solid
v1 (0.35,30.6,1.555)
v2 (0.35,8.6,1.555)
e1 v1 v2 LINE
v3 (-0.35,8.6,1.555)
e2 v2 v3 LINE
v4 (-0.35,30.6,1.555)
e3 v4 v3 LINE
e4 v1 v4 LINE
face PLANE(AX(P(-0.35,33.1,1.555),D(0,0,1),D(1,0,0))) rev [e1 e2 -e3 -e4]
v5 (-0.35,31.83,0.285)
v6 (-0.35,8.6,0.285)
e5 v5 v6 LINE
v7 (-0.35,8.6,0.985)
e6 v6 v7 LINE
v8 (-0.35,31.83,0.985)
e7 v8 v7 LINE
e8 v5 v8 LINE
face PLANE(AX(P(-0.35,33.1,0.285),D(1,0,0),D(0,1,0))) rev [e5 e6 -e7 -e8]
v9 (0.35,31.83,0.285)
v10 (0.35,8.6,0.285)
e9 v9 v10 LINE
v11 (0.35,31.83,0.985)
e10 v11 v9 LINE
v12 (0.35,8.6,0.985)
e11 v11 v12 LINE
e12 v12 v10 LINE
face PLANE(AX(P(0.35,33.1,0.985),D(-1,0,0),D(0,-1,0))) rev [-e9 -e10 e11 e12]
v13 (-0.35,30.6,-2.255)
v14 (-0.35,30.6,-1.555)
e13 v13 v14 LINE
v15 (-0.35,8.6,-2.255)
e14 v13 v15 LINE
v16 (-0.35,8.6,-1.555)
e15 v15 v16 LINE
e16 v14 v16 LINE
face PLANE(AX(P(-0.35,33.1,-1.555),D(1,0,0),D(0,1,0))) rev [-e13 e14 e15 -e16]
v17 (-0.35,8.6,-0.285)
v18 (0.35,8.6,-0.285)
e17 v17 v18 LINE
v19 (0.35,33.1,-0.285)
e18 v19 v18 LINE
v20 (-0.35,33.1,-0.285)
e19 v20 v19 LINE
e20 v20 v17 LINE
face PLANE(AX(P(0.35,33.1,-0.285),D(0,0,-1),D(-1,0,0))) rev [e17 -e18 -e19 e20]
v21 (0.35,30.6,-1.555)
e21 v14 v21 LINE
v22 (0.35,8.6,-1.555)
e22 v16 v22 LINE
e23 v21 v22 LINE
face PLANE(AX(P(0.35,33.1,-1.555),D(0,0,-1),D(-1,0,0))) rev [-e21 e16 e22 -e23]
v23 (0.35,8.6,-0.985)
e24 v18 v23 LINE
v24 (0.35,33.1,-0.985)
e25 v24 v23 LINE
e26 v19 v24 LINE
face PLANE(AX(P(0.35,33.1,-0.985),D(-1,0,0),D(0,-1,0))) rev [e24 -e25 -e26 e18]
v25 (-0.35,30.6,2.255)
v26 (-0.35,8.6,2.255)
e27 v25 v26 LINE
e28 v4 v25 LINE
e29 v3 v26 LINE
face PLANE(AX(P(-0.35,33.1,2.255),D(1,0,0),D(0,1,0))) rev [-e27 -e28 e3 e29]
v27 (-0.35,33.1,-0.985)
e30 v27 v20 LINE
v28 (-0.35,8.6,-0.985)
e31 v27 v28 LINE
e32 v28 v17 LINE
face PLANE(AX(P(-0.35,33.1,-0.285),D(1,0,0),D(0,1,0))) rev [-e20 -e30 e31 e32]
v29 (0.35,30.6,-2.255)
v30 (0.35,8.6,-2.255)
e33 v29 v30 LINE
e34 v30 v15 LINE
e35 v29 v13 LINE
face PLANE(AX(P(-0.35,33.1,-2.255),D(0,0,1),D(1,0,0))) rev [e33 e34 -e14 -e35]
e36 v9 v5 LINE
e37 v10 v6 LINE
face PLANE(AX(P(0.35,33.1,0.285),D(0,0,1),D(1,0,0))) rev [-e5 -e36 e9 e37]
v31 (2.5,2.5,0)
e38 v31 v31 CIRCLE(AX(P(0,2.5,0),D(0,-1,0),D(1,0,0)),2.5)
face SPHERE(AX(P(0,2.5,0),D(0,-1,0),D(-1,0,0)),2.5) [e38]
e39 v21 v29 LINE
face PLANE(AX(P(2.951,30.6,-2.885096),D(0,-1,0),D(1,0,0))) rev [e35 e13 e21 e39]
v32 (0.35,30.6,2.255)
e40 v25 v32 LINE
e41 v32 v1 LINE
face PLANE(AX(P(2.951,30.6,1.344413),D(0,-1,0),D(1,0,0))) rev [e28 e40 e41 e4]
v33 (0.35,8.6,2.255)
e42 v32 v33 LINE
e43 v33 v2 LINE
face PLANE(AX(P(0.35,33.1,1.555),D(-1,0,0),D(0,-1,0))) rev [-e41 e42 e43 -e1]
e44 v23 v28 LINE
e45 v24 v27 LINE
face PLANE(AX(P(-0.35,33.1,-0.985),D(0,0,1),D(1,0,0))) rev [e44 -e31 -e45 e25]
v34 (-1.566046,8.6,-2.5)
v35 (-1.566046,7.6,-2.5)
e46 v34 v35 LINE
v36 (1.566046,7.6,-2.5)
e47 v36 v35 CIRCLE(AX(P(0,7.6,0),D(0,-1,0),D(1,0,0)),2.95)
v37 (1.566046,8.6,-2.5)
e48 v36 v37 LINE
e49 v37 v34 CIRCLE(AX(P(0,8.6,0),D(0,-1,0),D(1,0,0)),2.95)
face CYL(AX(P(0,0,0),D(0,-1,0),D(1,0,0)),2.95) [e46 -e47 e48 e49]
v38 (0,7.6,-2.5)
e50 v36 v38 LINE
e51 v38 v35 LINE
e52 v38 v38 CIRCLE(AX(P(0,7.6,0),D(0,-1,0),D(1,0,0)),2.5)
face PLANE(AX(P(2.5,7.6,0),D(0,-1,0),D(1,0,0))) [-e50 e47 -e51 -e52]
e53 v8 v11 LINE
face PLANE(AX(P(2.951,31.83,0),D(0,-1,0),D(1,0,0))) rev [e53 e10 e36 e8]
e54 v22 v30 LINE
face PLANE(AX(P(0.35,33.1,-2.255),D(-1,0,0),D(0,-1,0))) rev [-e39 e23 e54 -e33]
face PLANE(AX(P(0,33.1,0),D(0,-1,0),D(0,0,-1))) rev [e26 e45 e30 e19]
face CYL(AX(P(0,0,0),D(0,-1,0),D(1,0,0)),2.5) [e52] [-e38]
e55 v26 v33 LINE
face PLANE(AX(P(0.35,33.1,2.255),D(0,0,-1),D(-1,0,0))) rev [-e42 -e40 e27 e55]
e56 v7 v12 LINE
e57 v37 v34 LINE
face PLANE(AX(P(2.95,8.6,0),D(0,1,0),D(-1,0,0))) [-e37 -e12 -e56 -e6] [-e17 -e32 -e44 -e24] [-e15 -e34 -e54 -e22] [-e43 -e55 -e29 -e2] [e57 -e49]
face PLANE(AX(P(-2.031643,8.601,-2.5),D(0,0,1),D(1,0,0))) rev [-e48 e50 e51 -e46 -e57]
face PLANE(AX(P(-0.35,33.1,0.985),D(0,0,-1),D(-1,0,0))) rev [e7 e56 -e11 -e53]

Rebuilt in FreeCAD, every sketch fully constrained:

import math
import FreeCAD as App
import Part
import Sketcher

V = App.Vector
Q = App.Units.Quantity


def add_polygon(sketch, points):
    """Adds a closed chain of lines whose ends are joined by coincident constraints."""
    first, n = sketch.GeometryCount, len(points)
    for a, b in zip(points, points[1:] + points[:1]):
        sketch.addGeometry(Part.LineSegment(App.Vector(*a, 0), App.Vector(*b, 0)), False)
    for i in range(n):
        sketch.addConstraint(Sketcher.Constraint("Coincident", first + i, 2, first + (i + 1) % n, 1))

doc = App.newDocument("Part")
params = doc.addObject("Spreadsheet::Sheet", "Params")
for row, (alias, value) in enumerate([
    ("sketch1_radius", "2.5 mm"),
    ("sketch1_height", "1 mm"),
    ("sketch1_height2", "5.1 mm"),
    ("sketch1_width", "0.45 mm"),
    ("revolution_angle", "360 deg"),
    ("pocket1_length", "1 mm"),
    ("sketch3_width", "0.7 mm"),
    ("pad1_length", "24.5 mm"),
    ("sketch4_width", "1.23 mm"),
    ("pocket2_length", "5.9 mm"),
], start=1):
    params.set(f"A{row}", alias)
    params.set(f"B{row}", "=" + value)
    params.setAlias(f"B{row}", alias)

body = doc.addObject("PartDesign::Body", "Body")

# Sketch on XY plane
sketch1 = doc.addObject("Sketcher::SketchObject", "Sketch")
body.addObject(sketch1)
sketch1.AttachmentSupport = (doc.XY_Plane, [""])
sketch1.MapMode = "FlatFace"
sketch1.addGeometry(Part.LineSegment(V(2.5, 2.5, 0), V(2.5, 7.6, 0)), False)
sketch1.addGeometry(Part.LineSegment(V(2.5, 7.6, 0), V(2.95, 7.6, 0)), False)
sketch1.addGeometry(Part.LineSegment(V(2.95, 7.6, 0), V(2.95, 8.6, 0)), False)
sketch1.addGeometry(Part.LineSegment(V(2.95, 8.6, 0), V(0, 8.6, 0)), False)
sketch1.addGeometry(Part.LineSegment(V(0, 8.6, 0), V(0, 0, 0)), False)
sketch1.addGeometry(Part.ArcOfCircle(Part.Circle(V(0, 2.5, 0), V(0, 0, 1), 2.5), math.radians(-90), math.radians(0)), False)
sketch1.addConstraint(Sketcher.Constraint("Coincident", 0, 2, 1, 1))
sketch1.addConstraint(Sketcher.Constraint("Coincident", 1, 2, 2, 1))
sketch1.addConstraint(Sketcher.Constraint("Coincident", 2, 2, 3, 1))
sketch1.addConstraint(Sketcher.Constraint("Coincident", 3, 2, 4, 1))
sketch1.addConstraint(Sketcher.Constraint("Coincident", 4, 2, 5, 1))
sketch1.addConstraint(Sketcher.Constraint("Tangent", 5, 2, 0, 1))
sketch1.addConstraint(Sketcher.Constraint("Vertical", 0))
sketch1.addConstraint(Sketcher.Constraint("Horizontal", 1))
sketch1.addConstraint(Sketcher.Constraint("Vertical", 2))
sketch1.addConstraint(Sketcher.Constraint("Horizontal", 3))
sketch1.addConstraint(Sketcher.Constraint("Vertical", 4))
sketch1.addConstraint(Sketcher.Constraint("Coincident", 4, 2, -1, 1))
sketch1.addConstraint(Sketcher.Constraint("PointOnObject", 5, 3, -2))
sketch1.addConstraint(Sketcher.Constraint("Radius", 5, Q("2.5 mm")))
sketch1.addConstraint(Sketcher.Constraint("DistanceY", 2, 1, 2, 2, Q("1 mm")))
sketch1.addConstraint(Sketcher.Constraint("DistanceY", 0, 1, 0, 2, Q("5.1 mm")))
sketch1.addConstraint(Sketcher.Constraint("DistanceX", 1, 1, 1, 2, Q("0.45 mm")))
sketch1.setExpression("Constraints[13]", "Params.sketch1_radius")
sketch1.setExpression("Constraints[14]", "Params.sketch1_height")
sketch1.setExpression("Constraints[15]", "Params.sketch1_height2")
sketch1.setExpression("Constraints[16]", "Params.sketch1_width")
revolution = doc.addObject("PartDesign::Revolution", "Revolution")
body.addObject(revolution)
revolution.Profile = sketch1
revolution.ReferenceAxis = (sketch1, ["V_Axis"])
revolution.setExpression("Angle", "Params.revolution_angle")

# Sketch on XZ plane
sketch2 = doc.addObject("Sketcher::SketchObject", "Sketch001")
body.addObject(sketch2)
sketch2.AttachmentSupport = (doc.XZ_Plane, [""])
sketch2.MapMode = "FlatFace"
sketch2.AttachmentOffset = App.Placement(V(0, 0, -7.6), App.Rotation())
add_polygon(sketch2, [(2.1, -2.5), (-2, -2.5), (0.3, -5.4)])  # lines 0-2
sketch2.addConstraint(Sketcher.Constraint("Horizontal", 0))
sketch2.addConstraint(Sketcher.Constraint("DistanceY", 0, 2, -1, 1, Q("2.5 mm")))
sketch2.addConstraint(Sketcher.Constraint("DistanceX", 0, 2, 0, 1, Q("4.150819 mm")))
sketch2.addConstraint(Sketcher.Constraint("DistanceX", 1, 2, 2, 2, Q("1.814898 mm")))
sketch2.addConstraint(Sketcher.Constraint("Distance", 2, Q("3.434491 mm")))
sketch2.addConstraint(Sketcher.Constraint("DistanceX", 0, 2, -1, 1, Q("2.031643 mm")))
pocket1 = doc.addObject("PartDesign::Pocket", "Pocket")
body.addObject(pocket1)
pocket1.Profile = sketch2
pocket1.setExpression("Length", "Params.pocket1_length")

# Sketch on XZ plane
sketch3 = doc.addObject("Sketcher::SketchObject", "Sketch002")
body.addObject(sketch3)
sketch3.AttachmentSupport = (doc.XZ_Plane, [""])
sketch3.MapMode = "FlatFace"
sketch3.AttachmentOffset = App.Placement(V(0, 0, -8.6), App.Rotation())
add_polygon(sketch3, [(-0.3, -2.3), (-0.3, -1.6), (0.3, -1.6), (0.3, -2.3)])  # lines 0-3
add_polygon(sketch3, [(-0.3, 0.3), (-0.3, 1), (0.3, 1), (0.3, 0.3)])  # lines 4-7
add_polygon(sketch3, [(-0.3, 1.6), (-0.3, 2.3), (0.3, 2.3), (0.3, 1.6)])  # lines 8-11
add_polygon(sketch3, [(-0.3, -1), (-0.3, -0.3), (0.3, -0.3), (0.3, -1)])  # lines 12-15
sketch3.addConstraint(Sketcher.Constraint("Vertical", 0))
sketch3.addConstraint(Sketcher.Constraint("Horizontal", 1))
sketch3.addConstraint(Sketcher.Constraint("Vertical", 2))
sketch3.addConstraint(Sketcher.Constraint("Horizontal", 3))
sketch3.addConstraint(Sketcher.Constraint("Vertical", 4))
sketch3.addConstraint(Sketcher.Constraint("Horizontal", 5))
sketch3.addConstraint(Sketcher.Constraint("Vertical", 6))
sketch3.addConstraint(Sketcher.Constraint("Horizontal", 7))
sketch3.addConstraint(Sketcher.Constraint("Vertical", 8))
sketch3.addConstraint(Sketcher.Constraint("Horizontal", 9))
sketch3.addConstraint(Sketcher.Constraint("Vertical", 10))
sketch3.addConstraint(Sketcher.Constraint("Horizontal", 11))
sketch3.addConstraint(Sketcher.Constraint("Vertical", 12))
sketch3.addConstraint(Sketcher.Constraint("Horizontal", 13))
sketch3.addConstraint(Sketcher.Constraint("Vertical", 14))
sketch3.addConstraint(Sketcher.Constraint("Horizontal", 15))
sketch3.addConstraint(Sketcher.Constraint("Symmetric", 2, 2, 8, 2, -1, 1))
sketch3.addConstraint(Sketcher.Constraint("Symmetric", 0, 2, 10, 2, -1, 1))
sketch3.addConstraint(Sketcher.Constraint("Symmetric", 6, 2, 12, 2, -1, 1))
sketch3.addConstraint(Sketcher.Constraint("Symmetric", 4, 2, 14, 2, -1, 1))
sketch3.addConstraint(Sketcher.Constraint("Vertical", 3, 2, 4, 2))
sketch3.addConstraint(Sketcher.Constraint("Vertical", 2, 2, 5, 2))
sketch3.addConstraint(Sketcher.Constraint("Vertical", 7, 2, 8, 2))
sketch3.addConstraint(Sketcher.Constraint("Equal", 15, 0))
sketch3.addConstraint(Sketcher.Constraint("Equal", 2, 4))
sketch3.addConstraint(Sketcher.Constraint("DistanceX", 1, 1, 1, 2, Q("0.7 mm")))
sketch3.addConstraint(Sketcher.Constraint("DistanceY", 0, 2, 4, 2, Q("2.54 mm")))
sketch3.addConstraint(Sketcher.Constraint("DistanceY", 4, 2, 8, 2, Q("1.27 mm")))
sketch3.setExpression("Constraints[41]", "Params.sketch3_width")
pad1 = doc.addObject("PartDesign::Pad", "Pad")
body.addObject(pad1)
pad1.Profile = sketch3
pad1.setExpression("Length", "Params.pad1_length")
pad1.Reversed = True

# Sketch on YZ plane
sketch4 = doc.addObject("Sketcher::SketchObject", "Sketch003")
body.addObject(sketch4)
sketch4.AttachmentSupport = (doc.YZ_Plane, [""])
sketch4.MapMode = "FlatFace"
sketch4.AttachmentOffset = App.Placement(V(0, 0, 2.95), App.Rotation())
add_polygon(sketch4, [(30.6, -2.9), (30.6, -1.3), (33.9, -1.3), (33.9, 0), (31.8, 0), (31.8, 1.3), (30.6, 1.3), (30.6, 2.9), (34.7, 2.9), (34.7, -2.9)])  # lines 0-9
sketch4.addConstraint(Sketcher.Constraint("Vertical", 0))
sketch4.addConstraint(Sketcher.Constraint("Horizontal", 1))
sketch4.addConstraint(Sketcher.Constraint("Vertical", 2))
sketch4.addConstraint(Sketcher.Constraint("Horizontal", 3))
sketch4.addConstraint(Sketcher.Constraint("Vertical", 4))
sketch4.addConstraint(Sketcher.Constraint("Horizontal", 5))
sketch4.addConstraint(Sketcher.Constraint("Vertical", 6))
sketch4.addConstraint(Sketcher.Constraint("Horizontal", 7))
sketch4.addConstraint(Sketcher.Constraint("Vertical", 8))
sketch4.addConstraint(Sketcher.Constraint("Horizontal", 9))
sketch4.addConstraint(Sketcher.Constraint("PointOnObject", 2, 2, -1))
sketch4.addConstraint(Sketcher.Constraint("Vertical", 0, 2, 5, 2))
sketch4.addConstraint(Sketcher.Constraint("DistanceX", 5, 2, 5, 1, Q("1.23 mm")))
sketch4.addConstraint(Sketcher.Constraint("DistanceX", -1, 1, 0, 2, Q("30.6 mm")))
sketch4.addConstraint(Sketcher.Constraint("DistanceY", 6, 1, 6, 2, Q("1.5531 mm")))
sketch4.addConstraint(Sketcher.Constraint("DistanceY", 0, 1, 0, 2, Q("1.619438 mm")))
sketch4.addConstraint(Sketcher.Constraint("DistanceY", 8, 2, 8, 1, Q("5.782608 mm")))
sketch4.addConstraint(Sketcher.Constraint("DistanceX", 1, 1, 1, 2, Q("3.321908 mm")))
sketch4.addConstraint(Sketcher.Constraint("DistanceX", 7, 1, 7, 2, Q("4.076887 mm")))
sketch4.addConstraint(Sketcher.Constraint("DistanceY", 2, 1, 2, 2, Q("1.265658 mm")))
sketch4.setExpression("Constraints[22]", "Params.sketch4_width")
pocket2 = doc.addObject("PartDesign::Pocket", "Pocket001")
body.addObject(pocket2)
pocket2.Profile = sketch4
pocket2.setExpression("Length", "Params.pocket2_length")

doc.recompute()
